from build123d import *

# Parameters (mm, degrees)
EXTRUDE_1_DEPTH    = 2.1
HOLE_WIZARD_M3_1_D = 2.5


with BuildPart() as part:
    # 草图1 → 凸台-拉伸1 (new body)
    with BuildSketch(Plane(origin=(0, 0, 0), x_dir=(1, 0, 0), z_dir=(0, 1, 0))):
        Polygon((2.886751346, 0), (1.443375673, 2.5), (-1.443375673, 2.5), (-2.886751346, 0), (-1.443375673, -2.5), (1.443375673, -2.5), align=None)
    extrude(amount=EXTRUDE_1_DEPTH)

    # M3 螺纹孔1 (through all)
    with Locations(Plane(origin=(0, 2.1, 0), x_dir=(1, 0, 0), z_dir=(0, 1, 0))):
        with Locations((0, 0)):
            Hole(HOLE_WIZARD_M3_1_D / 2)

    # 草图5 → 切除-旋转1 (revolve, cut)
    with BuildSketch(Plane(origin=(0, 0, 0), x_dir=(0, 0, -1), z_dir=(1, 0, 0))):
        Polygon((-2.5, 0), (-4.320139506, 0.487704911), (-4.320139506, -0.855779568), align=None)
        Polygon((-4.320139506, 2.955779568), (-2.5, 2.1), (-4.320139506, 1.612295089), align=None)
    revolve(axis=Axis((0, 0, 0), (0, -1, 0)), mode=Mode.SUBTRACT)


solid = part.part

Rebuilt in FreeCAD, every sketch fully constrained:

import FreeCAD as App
import Part
import Sketcher
Q = App.Units.Quantity


def add_polygon(sketch, points):
    """Adds a closed chain of lines whose ends are joined by coincident constraints."""
    first, n = sketch.GeometryCount, len(points)
    for a, b in zip(points, points[1:] + points[:1]):
        sketch.addGeometry(Part.LineSegment(App.Vector(*a, 0), App.Vector(*b, 0)), False)
    for i in range(n):
        sketch.addConstraint(Sketcher.Constraint("Coincident", first + i, 2, first + (i + 1) % n, 1))

doc = App.newDocument("Part")
body = doc.addObject("PartDesign::Body", "Body")

sketch1 = body.newObject("Sketcher::SketchObject", "Sketch")
sketch1.AttachmentSupport = (doc.getObject("XZ_Plane"), [""])
sketch1.MapMode = "FlatFace"
add_polygon(sketch1, [(2.9, 0), (1.4, -2.5), (-1.4, -2.5), (-2.9, 0), (-1.4, 2.5), (1.4, 2.5)])
sketch1.addConstraint(Sketcher.Constraint("Horizontal", 1))
sketch1.addConstraint(Sketcher.Constraint("Horizontal", 4))
sketch1.addConstraint(Sketcher.Constraint("Symmetric", 0, 2, 3, 2, -1, 1))
sketch1.addConstraint(Sketcher.Constraint("Symmetric", 2, 2, 5, 2, -1, 1))
sketch1.addConstraint(Sketcher.Constraint("PointOnObject", 2, 2, -1))
sketch1.addConstraint(Sketcher.Constraint("Parallel", 2, 5))
sketch1.addConstraint(Sketcher.Constraint("Vertical", 1, 2, 3, 2))
sketch1.addConstraint(Sketcher.Constraint("Angle", 0, Q("-120 deg")))
sketch1.addConstraint(Sketcher.Constraint("DistanceY", 1, 2, 3, 2, 5.0))
sketch1.addConstraint(Sketcher.Constraint("DistanceX", 1, 2, 1, 1, 2.886751))
pad1 = body.newObject("PartDesign::Pad", "Pad")
pad1.Profile = sketch1
pad1.Length = 2.1
pad1.Reversed = True

sketch2 = body.newObject("Sketcher::SketchObject", "Sketch001")
sketch2.AttachmentSupport = (doc.getObject("XZ_Plane"), [""])
sketch2.MapMode = "FlatFace"
sketch2.AttachmentOffset = App.Placement(App.Vector(0, 0, -2.1), App.Rotation())
sketch2.addGeometry(Part.Circle(App.Vector(0, 0, 0), App.Vector(0, 0, 1), 1.2), False)
sketch2.addConstraint(Sketcher.Constraint("Coincident", 0, 3, -1, 1))
sketch2.addConstraint(Sketcher.Constraint("Diameter", 0, 2.5))
doc.recompute()
hole = body.newObject("PartDesign::Hole", "Hole")
hole.Profile = sketch2
hole.ThreadType = "None"
hole.Diameter = 2.5
hole.DepthType = "ThroughAll"
hole.Reversed = True

sketch3 = body.newObject("Sketcher::SketchObject", "Sketch002")
sketch3.AttachmentSupport = (doc.getObject("YZ_Plane"), [""])
sketch3.MapMode = "FlatFace"
add_polygon(sketch3, [(0, 2.5), (0.5, 4.3), (-0.9, 4.3)])
add_polygon(sketch3, [(2.1, 2.5), (3, 4.3), (1.6, 4.3)])
sketch3.addConstraint(Sketcher.Constraint("Horizontal", 1))
sketch3.addConstraint(Sketcher.Constraint("Horizontal", 4))
sketch3.addConstraint(Sketcher.Constraint("PointOnObject", 2, 2, -2))
sketch3.addConstraint(Sketcher.Constraint("Horizontal", 1, 2, 3, 2))
sketch3.addConstraint(Sketcher.Constraint("Horizontal", 2, 2, 5, 2))
sketch3.addConstraint(Sketcher.Constraint("Equal", 1, 4))
sketch3.addConstraint(Sketcher.Constraint("Equal", 2, 3))
sketch3.addConstraint(Sketcher.Constraint("Angle", 0, Q("75 deg")))
sketch3.addConstraint(Sketcher.Constraint("DistanceY", -1, 1, 2, 2, 2.5))
sketch3.addConstraint(Sketcher.Constraint("DistanceX", -1, 1, 5, 2, 2.1))
sketch3.addConstraint(Sketcher.Constraint("DistanceX", 1, 2, 1, 1, 1.343484))
sketch3.addConstraint(Sketcher.Constraint("DistanceY", -1, 1, 0, 2, 4.32014))
groove = body.newObject("PartDesign::Groove", "Groove")
groove.Profile = sketch3
groove.ReferenceAxis = (sketch3, ["H_Axis"])
groove.Angle = 360

doc.recompute()
